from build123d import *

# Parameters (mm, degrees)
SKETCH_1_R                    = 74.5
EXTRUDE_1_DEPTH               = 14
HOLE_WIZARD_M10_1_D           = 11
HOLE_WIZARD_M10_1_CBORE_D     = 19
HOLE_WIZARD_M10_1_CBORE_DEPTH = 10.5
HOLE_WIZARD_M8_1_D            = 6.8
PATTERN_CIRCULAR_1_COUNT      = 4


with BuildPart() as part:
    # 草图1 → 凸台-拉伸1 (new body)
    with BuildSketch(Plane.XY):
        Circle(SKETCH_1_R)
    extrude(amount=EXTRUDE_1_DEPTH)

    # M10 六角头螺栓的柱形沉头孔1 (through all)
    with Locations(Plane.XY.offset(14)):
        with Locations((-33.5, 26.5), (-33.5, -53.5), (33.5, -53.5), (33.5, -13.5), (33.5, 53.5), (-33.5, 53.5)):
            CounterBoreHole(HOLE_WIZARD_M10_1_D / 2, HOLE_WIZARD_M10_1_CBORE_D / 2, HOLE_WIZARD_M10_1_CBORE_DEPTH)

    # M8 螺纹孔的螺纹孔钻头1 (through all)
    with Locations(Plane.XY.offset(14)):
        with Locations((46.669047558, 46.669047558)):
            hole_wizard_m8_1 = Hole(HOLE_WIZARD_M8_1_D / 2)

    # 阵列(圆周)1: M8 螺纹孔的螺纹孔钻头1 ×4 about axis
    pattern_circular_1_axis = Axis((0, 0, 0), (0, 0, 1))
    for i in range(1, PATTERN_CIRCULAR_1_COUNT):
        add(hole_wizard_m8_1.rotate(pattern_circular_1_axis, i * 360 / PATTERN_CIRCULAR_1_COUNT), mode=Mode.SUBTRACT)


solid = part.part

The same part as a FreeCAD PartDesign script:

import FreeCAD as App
import Part
import Sketcher

V = App.Vector
Q = App.Units.Quantity

doc = App.newDocument("Part")
body = doc.addObject("PartDesign::Body", "Body")

sketch1 = body.newObject("Sketcher::SketchObject", "Sketch")
sketch1.AttachmentSupport = (doc.getObject("XY_Plane"), [""])
sketch1.MapMode = "FlatFace"
sketch1.addGeometry(Part.Circle(V(0, 0, 0), V(0, 0, 1), 74.5), False)
sketch1.addConstraint(Sketcher.Constraint("Coincident", 0, 3, -1, 1))
sketch1.addConstraint(Sketcher.Constraint("Diameter", 0, Q("149 mm")))
pad1 = body.newObject("PartDesign::Pad", "Pad")
pad1.Profile = sketch1
pad1.Length = 14

sketch2 = body.newObject("Sketcher::SketchObject", "Sketch001")
sketch2.AttachmentSupport = (doc.getObject("XY_Plane"), [""])
sketch2.MapMode = "FlatFace"
sketch2.AttachmentOffset = App.Placement(V(0, 0, 14), App.Rotation())
sketch2.addGeometry(Part.Circle(V(-33.5, 26.5, 0), V(0, 0, 1), 5.5), False)
sketch2.addGeometry(Part.Circle(V(-33.5, -53.5, 0), V(0, 0, 1), 5.5), False)
sketch2.addGeometry(Part.Circle(V(33.5, -53.5, 0), V(0, 0, 1), 5.5), False)
sketch2.addGeometry(Part.Circle(V(33.5, -13.5, 0), V(0, 0, 1), 5.5), False)
sketch2.addGeometry(Part.Circle(V(33.5, 53.5, 0), V(0, 0, 1), 5.5), False)
sketch2.addGeometry(Part.Circle(V(-33.5, 53.5, 0), V(0, 0, 1), 5.5), False)
sketch2.addConstraint(Sketcher.Constraint("Equal", 0, 1))
sketch2.addConstraint(Sketcher.Constraint("Equal", 1, 2))
sketch2.addConstraint(Sketcher.Constraint("Equal", 2, 3))
sketch2.addConstraint(Sketcher.Constraint("Equal", 3, 4))
sketch2.addConstraint(Sketcher.Constraint("Equal", 4, 5))
sketch2.addConstraint(Sketcher.Constraint("Symmetric", 1, 3, 4, 3, -1, 1))
sketch2.addConstraint(Sketcher.Constraint("Symmetric", 2, 3, 5, 3, -1, 1))
sketch2.addConstraint(Sketcher.Constraint("Symmetric", 1, 3, 2, 3, -2))
sketch2.addConstraint(Sketcher.Constraint("Vertical", 0, 3, 1, 3))
sketch2.addConstraint(Sketcher.Constraint("Vertical", 2, 3, 3, 3))
sketch2.addConstraint(Sketcher.Constraint("Diameter", 0, Q("11 mm")))
sketch2.addConstraint(Sketcher.Constraint("DistanceY", 1, 3, 0, 3, Q("80 mm")))
sketch2.addConstraint(Sketcher.Constraint("DistanceX", 1, 3, 2, 3, Q("67 mm")))
sketch2.addConstraint(Sketcher.Constraint("DistanceY", 2, 3, 3, 3, Q("40 mm")))
sketch2.addConstraint(Sketcher.Constraint("DistanceY", 3, 3, 4, 3, Q("67 mm")))
doc.recompute()
hole = body.newObject("PartDesign::Hole", "Hole")
hole.Profile = sketch2
hole.ThreadType = "None"
hole.Diameter = 11
hole.DepthType = "ThroughAll"
hole.HoleCutType = "Counterbore"
hole.HoleCutDiameter = 19
hole.HoleCutDepth = 10.5

sketch3 = body.newObject("Sketcher::SketchObject", "Sketch002")
sketch3.AttachmentSupport = (doc.getObject("XY_Plane"), [""])
sketch3.MapMode = "FlatFace"
sketch3.AttachmentOffset = App.Placement(V(0, 0, 14), App.Rotation())
sketch3.addGeometry(Part.Circle(V(46.669048, 46.669048, 0), V(0, 0, 1), 3.4), False)
sketch3.addConstraint(Sketcher.Constraint("Diameter", 0, Q("6.8 mm")))
sketch3.addConstraint(Sketcher.Constraint("DistanceX", -1, 1, 0, 3, Q("46.669048 mm")))
sketch3.addConstraint(Sketcher.Constraint("DistanceY", -1, 1, 0, 3, Q("46.669048 mm")))
doc.recompute()
hole2 = body.newObject("PartDesign::Hole", "Hole001")
hole2.Profile = sketch3
hole2.ThreadType = "None"
hole2.Diameter = 6.8
hole2.DepthType = "ThroughAll"
doc.recompute()

polarpattern = body.newObject("PartDesign::PolarPattern", "PolarPattern")
polarpattern.Originals = [hole2]
polarpattern.Axis = (doc.getObject("Z_Axis"), [""])
polarpattern.Angle = 360
polarpattern.Occurrences = 4
body.Tip = polarpattern

doc.recompute()
